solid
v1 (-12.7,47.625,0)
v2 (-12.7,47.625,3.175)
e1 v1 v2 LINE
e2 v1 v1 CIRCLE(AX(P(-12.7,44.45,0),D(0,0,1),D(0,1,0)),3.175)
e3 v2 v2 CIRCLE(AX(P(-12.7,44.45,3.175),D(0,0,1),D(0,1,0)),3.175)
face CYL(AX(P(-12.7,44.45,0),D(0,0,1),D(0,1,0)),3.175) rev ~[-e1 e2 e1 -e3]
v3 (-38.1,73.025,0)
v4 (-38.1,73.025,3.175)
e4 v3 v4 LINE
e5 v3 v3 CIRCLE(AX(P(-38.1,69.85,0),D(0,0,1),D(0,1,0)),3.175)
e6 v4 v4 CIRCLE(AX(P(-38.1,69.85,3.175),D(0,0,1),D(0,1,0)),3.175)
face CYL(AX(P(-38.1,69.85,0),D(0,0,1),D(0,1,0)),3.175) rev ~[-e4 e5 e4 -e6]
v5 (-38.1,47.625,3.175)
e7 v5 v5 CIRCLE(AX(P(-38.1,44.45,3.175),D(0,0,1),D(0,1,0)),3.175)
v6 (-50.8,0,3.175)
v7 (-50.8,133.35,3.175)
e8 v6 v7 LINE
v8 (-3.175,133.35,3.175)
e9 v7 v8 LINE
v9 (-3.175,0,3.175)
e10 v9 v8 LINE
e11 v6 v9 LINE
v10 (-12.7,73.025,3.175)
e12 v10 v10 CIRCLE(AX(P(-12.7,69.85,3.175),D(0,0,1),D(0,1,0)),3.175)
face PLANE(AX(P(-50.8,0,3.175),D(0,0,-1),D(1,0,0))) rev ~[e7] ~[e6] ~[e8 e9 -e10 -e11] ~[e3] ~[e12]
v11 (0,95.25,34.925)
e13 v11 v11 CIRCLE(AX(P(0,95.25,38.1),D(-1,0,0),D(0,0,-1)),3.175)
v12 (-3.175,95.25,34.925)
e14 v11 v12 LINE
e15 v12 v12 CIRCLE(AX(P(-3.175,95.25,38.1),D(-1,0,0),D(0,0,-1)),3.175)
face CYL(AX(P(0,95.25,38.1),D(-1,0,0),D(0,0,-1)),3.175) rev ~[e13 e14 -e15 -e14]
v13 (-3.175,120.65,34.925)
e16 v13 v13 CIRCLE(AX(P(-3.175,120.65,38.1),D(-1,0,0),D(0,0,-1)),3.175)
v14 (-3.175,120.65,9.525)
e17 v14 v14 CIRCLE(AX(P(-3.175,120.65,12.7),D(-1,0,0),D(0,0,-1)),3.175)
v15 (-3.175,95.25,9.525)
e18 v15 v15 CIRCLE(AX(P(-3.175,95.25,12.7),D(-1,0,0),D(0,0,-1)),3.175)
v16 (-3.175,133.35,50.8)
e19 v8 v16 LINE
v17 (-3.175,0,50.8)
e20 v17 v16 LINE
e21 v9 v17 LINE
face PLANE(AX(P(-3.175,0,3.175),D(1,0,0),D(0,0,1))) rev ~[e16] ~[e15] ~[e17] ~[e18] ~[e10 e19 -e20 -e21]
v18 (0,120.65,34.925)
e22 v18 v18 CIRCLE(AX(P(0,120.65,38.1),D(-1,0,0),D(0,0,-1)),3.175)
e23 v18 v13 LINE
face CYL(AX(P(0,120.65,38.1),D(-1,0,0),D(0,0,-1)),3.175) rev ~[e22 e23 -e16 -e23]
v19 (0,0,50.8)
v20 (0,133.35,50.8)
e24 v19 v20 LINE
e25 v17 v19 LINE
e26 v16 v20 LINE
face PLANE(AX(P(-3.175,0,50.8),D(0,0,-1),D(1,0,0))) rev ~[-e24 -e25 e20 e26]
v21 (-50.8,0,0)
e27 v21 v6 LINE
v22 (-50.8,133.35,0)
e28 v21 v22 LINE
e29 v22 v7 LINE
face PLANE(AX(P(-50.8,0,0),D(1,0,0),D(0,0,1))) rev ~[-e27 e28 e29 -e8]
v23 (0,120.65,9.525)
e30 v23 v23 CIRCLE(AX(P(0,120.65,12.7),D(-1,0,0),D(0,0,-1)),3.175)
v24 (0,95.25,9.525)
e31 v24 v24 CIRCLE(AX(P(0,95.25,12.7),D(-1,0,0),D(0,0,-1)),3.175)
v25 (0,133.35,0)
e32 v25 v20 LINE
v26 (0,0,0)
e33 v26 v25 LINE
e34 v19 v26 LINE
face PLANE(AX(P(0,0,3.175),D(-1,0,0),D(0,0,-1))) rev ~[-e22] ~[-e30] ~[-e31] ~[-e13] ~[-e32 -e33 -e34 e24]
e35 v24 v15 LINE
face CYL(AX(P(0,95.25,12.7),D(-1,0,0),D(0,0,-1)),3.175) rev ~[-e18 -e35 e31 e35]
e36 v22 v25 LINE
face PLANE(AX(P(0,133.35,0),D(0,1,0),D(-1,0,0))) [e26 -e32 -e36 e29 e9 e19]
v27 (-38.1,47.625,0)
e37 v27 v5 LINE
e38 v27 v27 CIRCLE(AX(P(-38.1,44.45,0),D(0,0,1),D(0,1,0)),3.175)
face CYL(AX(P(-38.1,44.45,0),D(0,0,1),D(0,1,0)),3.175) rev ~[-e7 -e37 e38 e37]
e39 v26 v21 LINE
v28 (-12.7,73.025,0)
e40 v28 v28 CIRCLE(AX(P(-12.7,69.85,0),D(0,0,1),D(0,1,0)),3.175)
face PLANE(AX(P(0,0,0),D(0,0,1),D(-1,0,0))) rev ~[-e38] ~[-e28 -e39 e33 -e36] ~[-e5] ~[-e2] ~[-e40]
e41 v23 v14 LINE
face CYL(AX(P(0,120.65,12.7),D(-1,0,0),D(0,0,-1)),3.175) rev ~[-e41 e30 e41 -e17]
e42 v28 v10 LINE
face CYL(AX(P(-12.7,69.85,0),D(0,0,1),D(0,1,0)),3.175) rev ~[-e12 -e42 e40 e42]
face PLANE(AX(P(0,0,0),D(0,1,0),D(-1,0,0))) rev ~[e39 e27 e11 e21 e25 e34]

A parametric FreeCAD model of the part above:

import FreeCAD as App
import Part
import Sketcher
Q = App.Units.Quantity


def add_polygon(sketch, points):
    """Adds a closed chain of lines whose ends are joined by coincident constraints."""
    first, n = sketch.GeometryCount, len(points)
    for a, b in zip(points, points[1:] + points[:1]):
        sketch.addGeometry(Part.LineSegment(App.Vector(*a, 0), App.Vector(*b, 0)), False)
    for i in range(n):
        sketch.addConstraint(Sketcher.Constraint("Coincident", first + i, 2, first + (i + 1) % n, 1))

doc = App.newDocument("Part")
body = doc.addObject("PartDesign::Body", "Body")

# Sketch on XZ plane
sketch1 = body.newObject("Sketcher::SketchObject", "Sketch")
sketch1.AttachmentSupport = (doc.getObject("XZ_Plane"), [""])
sketch1.MapMode = "FlatFace"
add_polygon(sketch1, [(0, 0), (-50.8, 0), (-50.8, 3.2), (-3.2, 3.2), (-3.2, 50.8), (0, 50.8)])  # lines 0-5
sketch1.addConstraint([
    Sketcher.Constraint("Horizontal", 0),
    Sketcher.Constraint("Vertical", 1),
    Sketcher.Constraint("Horizontal", 2),
    Sketcher.Constraint("Vertical", 3),
    Sketcher.Constraint("Horizontal", 4),
    Sketcher.Constraint("Vertical", 5),
    Sketcher.Constraint("Coincident", 5, 2, -1, 1),
    Sketcher.Constraint("Equal", 4, 1),
    Sketcher.Constraint("Equal", 2, 3),
    Sketcher.Constraint("DistanceX", 0, 2, 0, 1, Q("2 in")),
    Sketcher.Constraint("DistanceX", 4, 1, 4, 2, Q("0.125 in")),
])
pad1 = body.newObject("PartDesign::Pad", "Pad")
pad1.Profile = sketch1
pad1.Length = Q("5.25 in")
pad1.Reversed = True

# Sketch on YZ plane
sketch2 = body.newObject("Sketcher::SketchObject", "Sketch001")
sketch2.AttachmentSupport = (doc.getObject("YZ_Plane"), [""])
sketch2.MapMode = "FlatFace"
sketch2.addGeometry([
    Part.Circle(App.Vector(120.7, 38.1, 0), App.Vector(0, 0, 1), 3.2),
    Part.Circle(App.Vector(120.7, 12.7, 0), App.Vector(0, 0, 1), 3.2),
    Part.Circle(App.Vector(95.2, 12.7, 0), App.Vector(0, 0, 1), 3.2),
    Part.Circle(App.Vector(95.2, 38.1, 0), App.Vector(0, 0, 1), 3.2),
], False)
sketch2.addConstraint([
    Sketcher.Constraint("Equal", 0, 1),
    Sketcher.Constraint("Equal", 1, 2),
    Sketcher.Constraint("Equal", 2, 3),
    Sketcher.Constraint("Horizontal", 1, 3, 2, 3),
    Sketcher.Constraint("Horizontal", 0, 3, 3, 3),
    Sketcher.Constraint("Vertical", 0, 3, 1, 3),
    Sketcher.Constraint("Vertical", 2, 3, 3, 3),
    Sketcher.Constraint("Diameter", 0, Q("0.25 in")),
    Sketcher.Constraint("DistanceY", 1, 3, 0, 3, Q("1 in")),
    Sketcher.Constraint("DistanceX", 2, 3, 1, 3, Q("1 in")),
    Sketcher.Constraint("DistanceY", -1, 1, 0, 3, Q("1.5 in")),
    Sketcher.Constraint("DistanceX", -1, 1, 0, 3, Q("4.75 in")),
])
doc.recompute()
hole = body.newObject("PartDesign::Hole", "Hole")
hole.Profile = sketch2
hole.ThreadType = "None"
hole.Diameter = Q("0.25 in")
hole.DepthType = "ThroughAll"

# Sketch on XY plane
sketch3 = body.newObject("Sketcher::SketchObject", "Sketch002")
sketch3.AttachmentSupport = (doc.getObject("XY_Plane"), [""])
sketch3.MapMode = "FlatFace"
sketch3.addGeometry([
    Part.Circle(App.Vector(-12.7, 69.8, 0), App.Vector(0, 0, 1), 3.2),
    Part.Circle(App.Vector(-38.1, 69.8, 0), App.Vector(0, 0, 1), 3.2),
    Part.Circle(App.Vector(-38.1, 44.5, 0), App.Vector(0, 0, 1), 3.2),
    Part.Circle(App.Vector(-12.7, 44.5, 0), App.Vector(0, 0, 1), 3.2),
], False)
sketch3.addConstraint([
    Sketcher.Constraint("Equal", 0, 1),
    Sketcher.Constraint("Equal", 1, 2),
    Sketcher.Constraint("Equal", 2, 3),
    Sketcher.Constraint("Horizontal", 0, 3, 1, 3),
    Sketcher.Constraint("Horizontal", 2, 3, 3, 3),
    Sketcher.Constraint("Vertical", 1, 3, 2, 3),
    Sketcher.Constraint("Vertical", 0, 3, 3, 3),
    Sketcher.Constraint("Diameter", 0, Q("0.25 in")),
    Sketcher.Constraint("DistanceX", 1, 3, 0, 3, Q("1 in")),
    Sketcher.Constraint("DistanceY", 2, 3, 1, 3, Q("1 in")),
    Sketcher.Constraint("DistanceX", 0, 3, -1, 1, Q("0.5 in")),
    Sketcher.Constraint("DistanceY", -1, 1, 0, 3, Q("2.75 in")),
])
doc.recompute()
hole2 = body.newObject("PartDesign::Hole", "Hole001")
hole2.Profile = sketch3
hole2.ThreadType = "None"
hole2.Diameter = Q("0.25 in")
hole2.DepthType = "ThroughAll"
hole2.Reversed = True

doc.recompute()
